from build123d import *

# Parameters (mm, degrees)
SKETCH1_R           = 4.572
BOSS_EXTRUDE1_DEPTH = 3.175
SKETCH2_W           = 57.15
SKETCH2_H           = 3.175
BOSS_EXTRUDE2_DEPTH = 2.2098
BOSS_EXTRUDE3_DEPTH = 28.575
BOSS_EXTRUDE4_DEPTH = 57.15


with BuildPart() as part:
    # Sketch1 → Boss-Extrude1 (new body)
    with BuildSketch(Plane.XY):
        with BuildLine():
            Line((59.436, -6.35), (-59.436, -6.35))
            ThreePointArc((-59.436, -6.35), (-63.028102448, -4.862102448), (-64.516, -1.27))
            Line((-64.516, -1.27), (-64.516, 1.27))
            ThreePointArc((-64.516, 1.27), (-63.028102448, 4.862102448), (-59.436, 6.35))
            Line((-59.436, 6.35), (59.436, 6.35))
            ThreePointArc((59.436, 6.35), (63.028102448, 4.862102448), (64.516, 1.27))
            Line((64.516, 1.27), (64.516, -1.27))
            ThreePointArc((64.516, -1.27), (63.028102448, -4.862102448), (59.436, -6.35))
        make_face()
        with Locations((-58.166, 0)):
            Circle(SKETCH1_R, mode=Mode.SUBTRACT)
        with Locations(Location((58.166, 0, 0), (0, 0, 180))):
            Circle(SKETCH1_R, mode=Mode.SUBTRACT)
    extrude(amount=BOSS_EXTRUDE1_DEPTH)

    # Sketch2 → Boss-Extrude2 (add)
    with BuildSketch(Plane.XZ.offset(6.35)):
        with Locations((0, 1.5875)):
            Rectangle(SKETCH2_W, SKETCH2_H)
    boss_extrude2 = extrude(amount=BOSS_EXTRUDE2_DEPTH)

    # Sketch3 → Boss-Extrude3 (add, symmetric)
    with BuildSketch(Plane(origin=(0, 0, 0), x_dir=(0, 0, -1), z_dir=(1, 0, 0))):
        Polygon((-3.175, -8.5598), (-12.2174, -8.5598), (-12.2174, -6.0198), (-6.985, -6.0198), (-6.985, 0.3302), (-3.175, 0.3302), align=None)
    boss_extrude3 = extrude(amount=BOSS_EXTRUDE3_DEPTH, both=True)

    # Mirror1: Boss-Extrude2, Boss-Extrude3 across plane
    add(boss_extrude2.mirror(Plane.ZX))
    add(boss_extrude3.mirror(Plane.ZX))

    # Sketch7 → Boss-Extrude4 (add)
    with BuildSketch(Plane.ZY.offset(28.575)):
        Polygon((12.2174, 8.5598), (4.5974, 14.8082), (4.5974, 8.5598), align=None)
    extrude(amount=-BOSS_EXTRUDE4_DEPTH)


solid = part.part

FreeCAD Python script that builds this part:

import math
import FreeCAD as App
import Part
import Sketcher
from FreeCAD import Vector
Q = App.Units.Quantity


def add_polygon(sketch, points):
    """Adds a closed chain of lines whose ends are joined by coincident constraints."""
    first, n = sketch.GeometryCount, len(points)
    for a, b in zip(points, points[1:] + points[:1]):
        sketch.addGeometry(Part.LineSegment(App.Vector(*a, 0), App.Vector(*b, 0)), False)
    for i in range(n):
        sketch.addConstraint(Sketcher.Constraint("Coincident", first + i, 2, first + (i + 1) % n, 1))

doc = App.newDocument("Part")
body = doc.addObject("PartDesign::Body", "Body")

# Sketch on XY plane
sketch1 = doc.addObject("Sketcher::SketchObject", "Sketch")
body.addObject(sketch1)
sketch1.AttachmentSupport = (doc.XY_Plane, [""])
sketch1.MapMode = "FlatFace"
sketch1.addGeometry([
    Part.LineSegment(Vector(-59.4, -6.3, 0), Vector(59.4, -6.3, 0)),  # 0
    Part.ArcOfCircle(Part.Circle(Vector(59.4, -1.3, 0), Vector(0, 0, 1), 5.1), math.radians(-90), math.radians(0)),  # 1
    Part.LineSegment(Vector(64.5, -1.3, 0), Vector(64.5, 1.3, 0)),  # 2
    Part.ArcOfCircle(Part.Circle(Vector(59.4, 1.3, 0), Vector(0, 0, 1), 5.1), math.radians(0), math.radians(90)),  # 3
    Part.LineSegment(Vector(59.4, 6.3, 0), Vector(-59.4, 6.3, 0)),  # 4
    Part.ArcOfCircle(Part.Circle(Vector(-59.4, 1.3, 0), Vector(0, 0, 1), 5.1), math.radians(90), math.radians(180)),  # 5
    Part.LineSegment(Vector(-64.5, 1.3, 0), Vector(-64.5, -1.3, 0)),  # 6
    Part.ArcOfCircle(Part.Circle(Vector(-59.4, -1.3, 0), Vector(0, 0, 1), 5.1), math.radians(-180), math.radians(-90)),  # 7
    Part.Circle(Vector(58.2, 0, 0), Vector(0, 0, 1), 4.6),  # 8
    Part.Circle(Vector(-58.2, 0, 0), Vector(0, 0, 1), 4.6),  # 9
], False)
sketch1.addConstraint([
    Sketcher.Constraint("Tangent", 0, 2, 1, 1),
    Sketcher.Constraint("Tangent", 1, 2, 2, 1),
    Sketcher.Constraint("Tangent", 2, 2, 3, 1),
    Sketcher.Constraint("Tangent", 3, 2, 4, 1),
    Sketcher.Constraint("Tangent", 4, 2, 5, 1),
    Sketcher.Constraint("Tangent", 5, 2, 6, 1),
    Sketcher.Constraint("Tangent", 6, 2, 7, 1),
    Sketcher.Constraint("Tangent", 7, 2, 0, 1),
    Sketcher.Constraint("Horizontal", 0),
    Sketcher.Constraint("Vertical", 2),
    Sketcher.Constraint("Horizontal", 4),
    Sketcher.Constraint("Vertical", 6),
    Sketcher.Constraint("Equal", 1, 3),
    Sketcher.Constraint("Equal", 3, 5),
    Sketcher.Constraint("Equal", 5, 7),
    Sketcher.Constraint("Equal", 8, 9),
    Sketcher.Constraint("Symmetric", 1, 3, 5, 3, -1, 1),
    Sketcher.Constraint("Symmetric", 8, 3, 9, 3, -1, 1),
    Sketcher.Constraint("PointOnObject", 8, 3, -1),
    Sketcher.Constraint("Radius", 1, Q("0.2 in")),
    Sketcher.Constraint("Diameter", 8, Q("0.36 in")),
    Sketcher.Constraint("DistanceY", 2, 1, 2, 2, Q("0.1 in")),
    Sketcher.Constraint("DistanceX", 0, 1, 0, 2, Q("4.68 in")),
    Sketcher.Constraint("DistanceX", -1, 1, 8, 3, Q("2.29 in")),
])
pad1 = doc.addObject("PartDesign::Pad", "Pad")
body.addObject(pad1)
pad1.Profile = sketch1
pad1.Length = Q("0.125 in")

# Sketch on XZ plane
sketch2 = doc.addObject("Sketcher::SketchObject", "Sketch001")
body.addObject(sketch2)
sketch2.AttachmentSupport = (doc.XZ_Plane, [""])
sketch2.MapMode = "FlatFace"
sketch2.AttachmentOffset = App.Placement(Vector(0, 0, 0.25 * 25.4), App.Rotation())
add_polygon(sketch2, [(-28.6, 3.2), (-28.6, 0), (28.6, 0), (28.6, 3.2)])  # lines 0-3
sketch2.addConstraint([
    Sketcher.Constraint("Vertical", 0),
    Sketcher.Constraint("Horizontal", 1),
    Sketcher.Constraint("Vertical", 2),
    Sketcher.Constraint("Horizontal", 3),
    Sketcher.Constraint("Symmetric", 0, 2, 1, 2, -1, 1),
    Sketcher.Constraint("DistanceX", 1, 1, 1, 2, Q("2.25 in")),
    Sketcher.Constraint("DistanceY", 0, 2, 0, 1, Q("0.125 in")),
])
pad2 = doc.addObject("PartDesign::Pad", "Pad001")
body.addObject(pad2)
pad2.Profile = sketch2
pad2.Length = Q("0.087 in")

# Sketch on YZ plane
sketch3 = doc.addObject("Sketcher::SketchObject", "Sketch002")
body.addObject(sketch3)
sketch3.AttachmentSupport = (doc.YZ_Plane, [""])
sketch3.MapMode = "FlatFace"
add_polygon(sketch3, [(-8.6, 12.2), (-8.6, 3.2), (0.3, 3.2), (0.3, 7), (-6, 7), (-6, 12.2)])  # lines 0-5
sketch3.addConstraint([
    Sketcher.Constraint("Vertical", 0),
    Sketcher.Constraint("Horizontal", 1),
    Sketcher.Constraint("Vertical", 2),
    Sketcher.Constraint("Horizontal", 3),
    Sketcher.Constraint("Vertical", 4),
    Sketcher.Constraint("Horizontal", 5),
    Sketcher.Constraint("DistanceX", 5, 2, 5, 1, Q("0.1 in")),
    Sketcher.Constraint("DistanceX", 1, 1, 1, 2, Q("0.35 in")),
    Sketcher.Constraint("DistanceY", 2, 1, 2, 2, Q("0.15 in")),
    Sketcher.Constraint("DistanceY", 0, 2, 0, 1, Q("0.356 in")),
    Sketcher.Constraint("DistanceX", 0, 2, -1, 1, Q("0.337 in")),
    Sketcher.Constraint("DistanceY", -1, 1, 0, 2, Q("0.125 in")),
])
pad3 = doc.addObject("PartDesign::Pad", "Pad002")
body.addObject(pad3)
pad3.Profile = sketch3
pad3.Length = Q("2.25 in")
pad3.Midplane = True
doc.recompute()

mirrored = doc.addObject("PartDesign::Mirrored", "Mirrored")
body.addObject(mirrored)
mirrored.Originals = [pad2, pad3]
mirrored.MirrorPlane = (doc.XZ_Plane, [""])
body.Tip = mirrored

# Sketch on YZ plane
sketch4 = doc.addObject("Sketcher::SketchObject", "Sketch003")
body.addObject(sketch4)
sketch4.AttachmentSupport = (doc.YZ_Plane, [""])
sketch4.MapMode = "FlatFace"
sketch4.AttachmentOffset = App.Placement(Vector(0, 0, -1.125 * 25.4), App.Rotation())
add_polygon(sketch4, [(9, 12), (15, 5), (9, 5)])  # lines 0-2
sketch4.addConstraint([
    Sketcher.Constraint("Horizontal", 1),
    Sketcher.Constraint("Vertical", 2),
    Sketcher.Constraint("DistanceY", 2, 1, 2, 2, Q("0.3 in")),
    Sketcher.Constraint("DistanceX", 1, 2, 1, 1, Q("0.246 in")),
    Sketcher.Constraint("DistanceX", -1, 1, 0, 2, Q("0.583 in")),
    Sketcher.Constraint("DistanceY", -1, 1, 0, 2, Q("0.181 in")),
])
pad4 = doc.addObject("PartDesign::Pad", "Pad003")
body.addObject(pad4)
pad4.Profile = sketch4
pad4.Length = Q("2.25 in")

doc.recompute()
